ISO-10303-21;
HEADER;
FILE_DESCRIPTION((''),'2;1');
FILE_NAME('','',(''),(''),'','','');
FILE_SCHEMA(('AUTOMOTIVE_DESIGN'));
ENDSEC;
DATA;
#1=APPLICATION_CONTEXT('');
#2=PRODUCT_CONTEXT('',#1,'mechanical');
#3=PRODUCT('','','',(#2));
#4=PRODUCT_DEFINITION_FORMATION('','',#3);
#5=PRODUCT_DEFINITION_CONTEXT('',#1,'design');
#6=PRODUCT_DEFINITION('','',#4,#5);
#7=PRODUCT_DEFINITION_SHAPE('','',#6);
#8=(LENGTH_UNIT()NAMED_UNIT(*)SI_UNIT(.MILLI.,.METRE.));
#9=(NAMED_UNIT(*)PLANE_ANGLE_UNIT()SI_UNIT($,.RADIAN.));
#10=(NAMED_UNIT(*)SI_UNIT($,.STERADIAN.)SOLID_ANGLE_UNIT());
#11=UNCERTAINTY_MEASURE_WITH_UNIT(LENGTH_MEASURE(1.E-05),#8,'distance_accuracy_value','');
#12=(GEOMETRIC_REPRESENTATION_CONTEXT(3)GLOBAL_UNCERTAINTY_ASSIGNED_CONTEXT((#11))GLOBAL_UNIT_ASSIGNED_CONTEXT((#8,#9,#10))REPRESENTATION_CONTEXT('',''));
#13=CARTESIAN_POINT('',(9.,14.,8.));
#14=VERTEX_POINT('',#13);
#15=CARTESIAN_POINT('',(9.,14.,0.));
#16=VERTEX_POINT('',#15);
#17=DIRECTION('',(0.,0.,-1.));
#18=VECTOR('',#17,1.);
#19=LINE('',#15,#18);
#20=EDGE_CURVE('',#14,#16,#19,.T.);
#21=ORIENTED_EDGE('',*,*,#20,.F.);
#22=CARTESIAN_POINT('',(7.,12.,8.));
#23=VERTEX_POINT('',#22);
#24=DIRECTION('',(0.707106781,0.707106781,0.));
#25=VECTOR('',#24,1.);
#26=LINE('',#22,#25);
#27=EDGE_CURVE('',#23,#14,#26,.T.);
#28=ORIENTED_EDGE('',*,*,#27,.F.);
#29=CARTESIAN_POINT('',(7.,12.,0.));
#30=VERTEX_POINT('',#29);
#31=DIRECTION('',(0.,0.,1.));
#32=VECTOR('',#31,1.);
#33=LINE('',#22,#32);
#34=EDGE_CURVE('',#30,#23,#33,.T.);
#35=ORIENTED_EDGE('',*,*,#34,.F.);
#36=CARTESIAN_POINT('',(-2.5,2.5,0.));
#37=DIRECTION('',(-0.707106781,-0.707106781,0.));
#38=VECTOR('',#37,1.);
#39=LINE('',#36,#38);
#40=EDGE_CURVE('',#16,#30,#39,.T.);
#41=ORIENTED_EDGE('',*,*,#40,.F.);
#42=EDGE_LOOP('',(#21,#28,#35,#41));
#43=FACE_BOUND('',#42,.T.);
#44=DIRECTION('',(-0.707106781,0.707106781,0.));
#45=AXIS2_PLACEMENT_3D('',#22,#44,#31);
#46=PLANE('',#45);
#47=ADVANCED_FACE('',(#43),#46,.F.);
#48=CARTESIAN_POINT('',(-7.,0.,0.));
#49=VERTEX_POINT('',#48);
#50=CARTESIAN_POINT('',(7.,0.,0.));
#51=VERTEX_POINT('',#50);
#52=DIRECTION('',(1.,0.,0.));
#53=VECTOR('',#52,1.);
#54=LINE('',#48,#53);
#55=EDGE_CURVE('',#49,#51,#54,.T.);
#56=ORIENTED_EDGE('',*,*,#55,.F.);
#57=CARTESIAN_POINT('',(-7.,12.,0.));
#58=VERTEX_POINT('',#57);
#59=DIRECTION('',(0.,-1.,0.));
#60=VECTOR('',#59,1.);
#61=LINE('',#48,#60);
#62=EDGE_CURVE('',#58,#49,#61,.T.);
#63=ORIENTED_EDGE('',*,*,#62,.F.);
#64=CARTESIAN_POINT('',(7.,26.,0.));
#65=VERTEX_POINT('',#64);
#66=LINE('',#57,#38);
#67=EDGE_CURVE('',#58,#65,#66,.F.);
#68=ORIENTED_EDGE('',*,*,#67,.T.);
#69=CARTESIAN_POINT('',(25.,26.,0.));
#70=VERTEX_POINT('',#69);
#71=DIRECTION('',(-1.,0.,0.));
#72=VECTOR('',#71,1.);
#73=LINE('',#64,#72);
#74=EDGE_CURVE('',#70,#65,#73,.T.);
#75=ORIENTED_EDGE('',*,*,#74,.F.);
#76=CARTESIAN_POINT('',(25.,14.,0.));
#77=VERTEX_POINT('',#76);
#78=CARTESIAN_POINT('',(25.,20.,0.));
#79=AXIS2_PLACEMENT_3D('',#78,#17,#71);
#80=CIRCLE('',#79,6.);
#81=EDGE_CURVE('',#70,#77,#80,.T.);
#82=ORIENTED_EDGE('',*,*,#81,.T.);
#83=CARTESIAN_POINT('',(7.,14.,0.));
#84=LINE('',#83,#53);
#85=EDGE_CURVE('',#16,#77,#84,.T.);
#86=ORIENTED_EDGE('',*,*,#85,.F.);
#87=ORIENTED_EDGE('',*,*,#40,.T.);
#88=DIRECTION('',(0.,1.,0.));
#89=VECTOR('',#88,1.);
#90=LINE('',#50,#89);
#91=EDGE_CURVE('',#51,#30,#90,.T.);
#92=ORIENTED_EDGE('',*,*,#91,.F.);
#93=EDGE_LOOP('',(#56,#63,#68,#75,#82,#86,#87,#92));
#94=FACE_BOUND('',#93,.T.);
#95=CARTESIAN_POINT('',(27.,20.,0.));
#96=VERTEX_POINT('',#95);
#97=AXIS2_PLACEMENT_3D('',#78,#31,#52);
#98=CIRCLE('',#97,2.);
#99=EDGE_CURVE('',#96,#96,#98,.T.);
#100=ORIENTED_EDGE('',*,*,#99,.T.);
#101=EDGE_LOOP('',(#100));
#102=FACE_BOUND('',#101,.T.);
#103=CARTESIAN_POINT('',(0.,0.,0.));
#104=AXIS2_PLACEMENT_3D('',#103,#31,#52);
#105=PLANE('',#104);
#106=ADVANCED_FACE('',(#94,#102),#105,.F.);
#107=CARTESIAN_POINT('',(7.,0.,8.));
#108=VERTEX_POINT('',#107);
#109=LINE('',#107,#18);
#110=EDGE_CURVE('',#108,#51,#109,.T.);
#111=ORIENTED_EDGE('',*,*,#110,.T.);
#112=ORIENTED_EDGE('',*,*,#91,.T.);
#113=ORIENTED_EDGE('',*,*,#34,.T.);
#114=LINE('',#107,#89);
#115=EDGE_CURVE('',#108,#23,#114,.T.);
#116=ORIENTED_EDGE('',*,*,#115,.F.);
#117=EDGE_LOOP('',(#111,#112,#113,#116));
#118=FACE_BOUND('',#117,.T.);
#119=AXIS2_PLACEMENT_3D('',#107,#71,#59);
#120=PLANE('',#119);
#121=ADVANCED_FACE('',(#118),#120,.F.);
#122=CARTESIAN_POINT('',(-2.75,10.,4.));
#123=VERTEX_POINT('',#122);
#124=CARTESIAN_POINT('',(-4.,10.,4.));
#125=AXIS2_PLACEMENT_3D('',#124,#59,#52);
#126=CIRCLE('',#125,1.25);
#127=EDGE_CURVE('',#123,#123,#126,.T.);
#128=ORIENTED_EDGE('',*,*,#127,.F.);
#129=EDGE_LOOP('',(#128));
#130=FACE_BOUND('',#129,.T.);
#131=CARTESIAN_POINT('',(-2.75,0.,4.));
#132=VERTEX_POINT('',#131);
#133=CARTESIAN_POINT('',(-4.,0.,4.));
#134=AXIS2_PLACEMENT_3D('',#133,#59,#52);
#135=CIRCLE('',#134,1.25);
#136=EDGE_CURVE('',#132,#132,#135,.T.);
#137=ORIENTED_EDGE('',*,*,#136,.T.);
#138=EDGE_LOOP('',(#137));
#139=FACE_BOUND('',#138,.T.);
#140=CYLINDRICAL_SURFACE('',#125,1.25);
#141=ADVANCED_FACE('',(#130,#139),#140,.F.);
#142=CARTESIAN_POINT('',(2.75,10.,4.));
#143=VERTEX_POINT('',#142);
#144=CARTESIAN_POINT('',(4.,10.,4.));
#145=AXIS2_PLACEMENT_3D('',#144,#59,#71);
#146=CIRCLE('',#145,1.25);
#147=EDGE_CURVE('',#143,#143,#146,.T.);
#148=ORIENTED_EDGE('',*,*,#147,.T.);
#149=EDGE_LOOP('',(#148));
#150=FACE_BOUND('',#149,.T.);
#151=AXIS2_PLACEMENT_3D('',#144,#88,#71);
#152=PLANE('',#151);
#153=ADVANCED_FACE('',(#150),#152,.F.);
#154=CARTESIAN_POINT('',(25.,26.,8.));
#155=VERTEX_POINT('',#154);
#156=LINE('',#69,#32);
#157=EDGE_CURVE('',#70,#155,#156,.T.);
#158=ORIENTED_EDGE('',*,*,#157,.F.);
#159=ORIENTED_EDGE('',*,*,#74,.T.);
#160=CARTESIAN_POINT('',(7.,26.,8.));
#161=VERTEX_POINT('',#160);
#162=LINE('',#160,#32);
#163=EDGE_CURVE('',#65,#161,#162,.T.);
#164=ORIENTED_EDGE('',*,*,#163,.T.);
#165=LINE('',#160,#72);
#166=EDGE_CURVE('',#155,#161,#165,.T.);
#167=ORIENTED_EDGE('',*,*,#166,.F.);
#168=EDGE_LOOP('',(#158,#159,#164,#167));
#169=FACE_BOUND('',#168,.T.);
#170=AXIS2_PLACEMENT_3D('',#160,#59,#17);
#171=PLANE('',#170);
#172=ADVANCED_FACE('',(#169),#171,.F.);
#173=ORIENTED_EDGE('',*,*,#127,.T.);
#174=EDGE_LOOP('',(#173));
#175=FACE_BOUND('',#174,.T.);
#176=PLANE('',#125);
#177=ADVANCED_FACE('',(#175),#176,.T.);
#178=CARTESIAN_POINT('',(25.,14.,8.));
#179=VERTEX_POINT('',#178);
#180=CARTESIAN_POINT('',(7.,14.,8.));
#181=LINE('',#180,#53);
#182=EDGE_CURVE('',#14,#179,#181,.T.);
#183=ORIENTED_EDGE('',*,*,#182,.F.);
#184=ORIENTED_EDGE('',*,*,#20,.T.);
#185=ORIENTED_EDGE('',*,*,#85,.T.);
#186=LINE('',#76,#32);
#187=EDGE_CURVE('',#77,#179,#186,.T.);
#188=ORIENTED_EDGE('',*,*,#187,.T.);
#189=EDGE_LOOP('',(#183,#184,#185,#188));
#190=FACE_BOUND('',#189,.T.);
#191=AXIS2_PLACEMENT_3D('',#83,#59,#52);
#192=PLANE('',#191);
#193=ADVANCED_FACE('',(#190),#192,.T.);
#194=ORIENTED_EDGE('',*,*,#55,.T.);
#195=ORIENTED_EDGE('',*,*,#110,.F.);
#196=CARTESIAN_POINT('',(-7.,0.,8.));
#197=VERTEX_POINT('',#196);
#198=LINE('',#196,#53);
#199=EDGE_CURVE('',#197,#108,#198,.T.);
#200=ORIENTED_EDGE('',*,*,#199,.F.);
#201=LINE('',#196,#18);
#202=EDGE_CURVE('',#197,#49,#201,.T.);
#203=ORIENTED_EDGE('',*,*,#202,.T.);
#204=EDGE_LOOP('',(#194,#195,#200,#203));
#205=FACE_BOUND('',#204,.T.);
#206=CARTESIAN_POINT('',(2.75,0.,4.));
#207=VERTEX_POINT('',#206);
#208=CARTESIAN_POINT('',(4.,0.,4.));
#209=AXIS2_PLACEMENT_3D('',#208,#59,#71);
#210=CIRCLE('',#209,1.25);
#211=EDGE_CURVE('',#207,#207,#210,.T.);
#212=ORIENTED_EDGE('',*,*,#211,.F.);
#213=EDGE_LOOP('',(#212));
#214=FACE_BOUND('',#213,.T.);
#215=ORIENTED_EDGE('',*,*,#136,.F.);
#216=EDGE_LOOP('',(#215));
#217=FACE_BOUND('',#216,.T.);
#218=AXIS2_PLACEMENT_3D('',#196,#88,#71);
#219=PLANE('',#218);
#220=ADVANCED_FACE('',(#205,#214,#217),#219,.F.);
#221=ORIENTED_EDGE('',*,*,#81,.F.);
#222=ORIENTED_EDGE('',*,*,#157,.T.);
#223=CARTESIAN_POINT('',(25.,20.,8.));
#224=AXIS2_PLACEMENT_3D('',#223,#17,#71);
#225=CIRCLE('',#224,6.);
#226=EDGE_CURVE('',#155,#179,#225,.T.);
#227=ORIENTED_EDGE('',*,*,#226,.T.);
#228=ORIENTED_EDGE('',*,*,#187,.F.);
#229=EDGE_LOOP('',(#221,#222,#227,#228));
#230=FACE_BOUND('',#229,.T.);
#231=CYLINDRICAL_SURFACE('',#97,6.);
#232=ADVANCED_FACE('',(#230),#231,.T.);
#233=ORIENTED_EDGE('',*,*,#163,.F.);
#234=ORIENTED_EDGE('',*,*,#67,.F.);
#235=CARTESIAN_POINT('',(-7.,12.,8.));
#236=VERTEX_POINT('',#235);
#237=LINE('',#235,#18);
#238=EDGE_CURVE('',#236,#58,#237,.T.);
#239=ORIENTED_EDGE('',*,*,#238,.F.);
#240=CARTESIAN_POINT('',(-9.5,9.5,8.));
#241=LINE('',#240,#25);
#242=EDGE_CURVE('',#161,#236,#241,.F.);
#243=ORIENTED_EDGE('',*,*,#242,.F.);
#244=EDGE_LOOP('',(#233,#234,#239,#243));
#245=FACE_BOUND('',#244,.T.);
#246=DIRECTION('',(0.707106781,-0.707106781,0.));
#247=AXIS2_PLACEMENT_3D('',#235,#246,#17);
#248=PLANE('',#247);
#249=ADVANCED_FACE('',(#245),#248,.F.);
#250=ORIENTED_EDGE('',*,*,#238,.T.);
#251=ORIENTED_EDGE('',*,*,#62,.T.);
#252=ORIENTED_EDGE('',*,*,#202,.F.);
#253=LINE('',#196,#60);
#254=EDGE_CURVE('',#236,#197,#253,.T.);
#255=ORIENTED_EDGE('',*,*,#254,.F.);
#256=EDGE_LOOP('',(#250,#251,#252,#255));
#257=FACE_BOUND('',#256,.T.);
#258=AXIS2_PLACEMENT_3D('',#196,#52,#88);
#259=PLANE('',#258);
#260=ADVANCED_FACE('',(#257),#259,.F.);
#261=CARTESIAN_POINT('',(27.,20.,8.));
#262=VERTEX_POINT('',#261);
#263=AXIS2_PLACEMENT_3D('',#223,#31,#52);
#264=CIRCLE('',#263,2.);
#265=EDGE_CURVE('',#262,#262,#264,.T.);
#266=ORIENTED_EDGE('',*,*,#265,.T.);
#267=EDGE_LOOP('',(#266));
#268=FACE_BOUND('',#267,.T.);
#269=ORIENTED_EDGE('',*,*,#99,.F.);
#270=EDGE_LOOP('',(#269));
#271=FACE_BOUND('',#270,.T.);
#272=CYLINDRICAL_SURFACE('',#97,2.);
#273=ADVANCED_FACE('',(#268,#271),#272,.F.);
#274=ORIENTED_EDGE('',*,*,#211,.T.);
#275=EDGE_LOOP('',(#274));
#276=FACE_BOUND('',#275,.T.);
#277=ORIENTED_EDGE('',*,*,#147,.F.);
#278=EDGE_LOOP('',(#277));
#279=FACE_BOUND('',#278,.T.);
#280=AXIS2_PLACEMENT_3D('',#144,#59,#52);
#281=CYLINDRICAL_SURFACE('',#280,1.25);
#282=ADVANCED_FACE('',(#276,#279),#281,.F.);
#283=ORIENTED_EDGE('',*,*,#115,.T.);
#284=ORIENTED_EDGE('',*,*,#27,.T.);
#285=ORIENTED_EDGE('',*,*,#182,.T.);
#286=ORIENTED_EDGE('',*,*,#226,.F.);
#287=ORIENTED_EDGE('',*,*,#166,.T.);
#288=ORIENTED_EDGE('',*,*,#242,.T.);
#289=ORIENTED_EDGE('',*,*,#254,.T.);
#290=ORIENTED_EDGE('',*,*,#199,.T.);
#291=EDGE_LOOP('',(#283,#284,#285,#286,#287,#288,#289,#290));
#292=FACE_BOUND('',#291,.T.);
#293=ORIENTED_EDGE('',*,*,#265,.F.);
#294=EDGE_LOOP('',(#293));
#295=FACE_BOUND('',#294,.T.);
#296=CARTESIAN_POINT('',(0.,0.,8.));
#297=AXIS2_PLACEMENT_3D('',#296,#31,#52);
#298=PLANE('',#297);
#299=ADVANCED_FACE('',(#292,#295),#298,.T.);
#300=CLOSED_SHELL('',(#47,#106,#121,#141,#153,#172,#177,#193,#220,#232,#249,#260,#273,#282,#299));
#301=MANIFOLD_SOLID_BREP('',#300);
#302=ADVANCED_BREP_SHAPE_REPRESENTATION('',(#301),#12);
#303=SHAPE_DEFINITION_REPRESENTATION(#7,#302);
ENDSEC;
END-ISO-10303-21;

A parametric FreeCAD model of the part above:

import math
import FreeCAD as App
import Part
import Sketcher


def edges_at(feature, points):
    """Names of the edges that pass closest to the given points."""
    edges = feature.Shape.Edges
    near = lambda p: min(range(len(edges)), key=lambda i: edges[i].distToShape(Part.Vertex(*p))[0])
    return sorted({f"Edge{near(p) + 1}" for p in points})

doc = App.newDocument("Part")
body = doc.addObject("PartDesign::Body", "Body")

sketch1 = body.newObject("Sketcher::SketchObject", "Sketch")
sketch1.AttachmentSupport = (doc.getObject("XY_Plane"), [""])
sketch1.MapMode = "FlatFace"
sketch1.addGeometry([
    Part.LineSegment(App.Vector(-7, 26, 0), App.Vector(-7, 0, 0)),
    Part.LineSegment(App.Vector(-7, 0, 0), App.Vector(7, 0, 0)),
    Part.LineSegment(App.Vector(7, 0, 0), App.Vector(7, 26, 0)),
    Part.LineSegment(App.Vector(7, 26, 0), App.Vector(-7, 26, 0)),
], False)
sketch1.addConstraint([
    Sketcher.Constraint("Coincident", 0, 2, 1, 1),
    Sketcher.Constraint("Coincident", 1, 2, 2, 1),
    Sketcher.Constraint("Coincident", 2, 2, 3, 1),
    Sketcher.Constraint("Coincident", 3, 2, 0, 1),
    Sketcher.Constraint("Vertical", 0),
    Sketcher.Constraint("Horizontal", 1),
    Sketcher.Constraint("Vertical", 2),
    Sketcher.Constraint("Horizontal", 3),
    Sketcher.Constraint("Symmetric", 0, 2, 1, 2, -1, 1),
    Sketcher.Constraint("DistanceX", 1, 1, 1, 2, 14.0),
    Sketcher.Constraint("DistanceY", 0, 2, 0, 1, 26.0),
])
pad1 = body.newObject("PartDesign::Pad", "Pad")
pad1.Profile = sketch1
pad1.Length = 8

sketch2 = body.newObject("Sketcher::SketchObject", "Sketch001")
sketch2.AttachmentSupport = (doc.getObject("XZ_Plane"), [""])
sketch2.MapMode = "FlatFace"
sketch2.addGeometry([
    Part.Circle(App.Vector(-4, 4, 0), App.Vector(0, 0, 1), 1.25),
    Part.Circle(App.Vector(4, 4, 0), App.Vector(0, 0, 1), 1.25),
], False)
sketch2.addConstraint([
    Sketcher.Constraint("Equal", 0, 1),
    Sketcher.Constraint("Symmetric", 0, 3, 1, 3, -2),
    Sketcher.Constraint("Diameter", 0, 2.5),
    Sketcher.Constraint("DistanceX", 0, 3, -1, 1, 4.0),
    Sketcher.Constraint("DistanceY", -1, 1, 0, 3, 4.0),
])
pocket1 = body.newObject("PartDesign::Pocket", "Pocket")
pocket1.Profile = sketch2
pocket1.Length = 10

sketch3 = body.newObject("Sketcher::SketchObject", "Sketch002")
sketch3.AttachmentSupport = (doc.getObject("XY_Plane"), [""])
sketch3.MapMode = "FlatFace"
sketch3.AttachmentOffset = App.Placement(App.Vector(0, 0, 8), App.Rotation())
sketch3.addGeometry([
    Part.LineSegment(App.Vector(7, 26, 0), App.Vector(7, 14, 0)),
    Part.LineSegment(App.Vector(7, 14, 0), App.Vector(31, 14, 0)),
    Part.LineSegment(App.Vector(31, 14, 0), App.Vector(31, 26, 0)),
    Part.LineSegment(App.Vector(31, 26, 0), App.Vector(7, 26, 0)),
], False)
sketch3.addConstraint([
    Sketcher.Constraint("Coincident", 0, 2, 1, 1),
    Sketcher.Constraint("Coincident", 1, 2, 2, 1),
    Sketcher.Constraint("Coincident", 2, 2, 3, 1),
    Sketcher.Constraint("Coincident", 3, 2, 0, 1),
    Sketcher.Constraint("Vertical", 0),
    Sketcher.Constraint("Horizontal", 1),
    Sketcher.Constraint("Vertical", 2),
    Sketcher.Constraint("Horizontal", 3),
    Sketcher.Constraint("DistanceX", 1, 1, 1, 2, 24.0),
    Sketcher.Constraint("DistanceY", 0, 2, 0, 1, 12.0),
    Sketcher.Constraint("DistanceX", -1, 1, 0, 2, 7.0),
    Sketcher.Constraint("DistanceY", -1, 1, 0, 2, 14.0),
])
pad2 = body.newObject("PartDesign::Pad", "Pad001")
pad2.Profile = sketch3
pad2.Length = 8
pad2.Reversed = True

sketch4 = body.newObject("Sketcher::SketchObject", "Sketch003")
sketch4.AttachmentSupport = (doc.getObject("XY_Plane"), [""])
sketch4.MapMode = "FlatFace"
sketch4.AttachmentOffset = App.Placement(App.Vector(0, 0, 8), App.Rotation())
sketch4.addGeometry(Part.Circle(App.Vector(25, 20, 0), App.Vector(0, 0, 1), 2), False)
sketch4.addConstraint([
    Sketcher.Constraint("Diameter", 0, 4.0),
    Sketcher.Constraint("DistanceX", -1, 1, 0, 3, 25.0),
    Sketcher.Constraint("DistanceY", -1, 1, 0, 3, 20.0),
])
pocket2 = body.newObject("PartDesign::Pocket", "Pocket001")
pocket2.Profile = sketch4
pocket2.Type = "ThroughAll"
doc.recompute()

chamfer = body.newObject("PartDesign::Chamfer", "Chamfer")
chamfer.Base = (pocket2, edges_at(pocket2, [(-7, 26, 4)]))
chamfer.Size = 14

sketch5 = body.newObject("Sketcher::SketchObject", "Sketch004")
sketch5.AttachmentSupport = (doc.getObject("XY_Plane"), [""])
sketch5.MapMode = "FlatFace"
sketch5.AttachmentOffset = App.Placement(App.Vector(0, 0, 8), App.Rotation())
sketch5.addGeometry([
    Part.LineSegment(App.Vector(32, 26, 0), App.Vector(25, 26, 0)),
    Part.ArcOfCircle(Part.Circle(App.Vector(25, 20, 0), App.Vector(0, 0, 1), 6), math.radians(-90), math.radians(90)),
    Part.LineSegment(App.Vector(25, 14, 0), App.Vector(32, 14, 0)),
    Part.LineSegment(App.Vector(32, 14, 0), App.Vector(32, 26, 0)),
], False)
sketch5.addConstraint([
    Sketcher.Constraint("Tangent", 0, 2, 1, 2),
    Sketcher.Constraint("Tangent", 1, 1, 2, 1),
    Sketcher.Constraint("Coincident", 2, 2, 3, 1),
    Sketcher.Constraint("Coincident", 3, 2, 0, 1),
    Sketcher.Constraint("Horizontal", 0),
    Sketcher.Constraint("Horizontal", 2),
    Sketcher.Constraint("Vertical", 3),
    Sketcher.Constraint("Radius", 1, 6.0),
    Sketcher.Constraint("DistanceX", 0, 2, 0, 1, 7.0),
    Sketcher.Constraint("DistanceX", -1, 1, 1, 3, 25.0),
    Sketcher.Constraint("DistanceY", -1, 1, 1, 3, 20.0),
])
pocket3 = body.newObject("PartDesign::Pocket", "Pocket002")
pocket3.Profile = sketch5
pocket3.Type = "ThroughAll"
doc.recompute()

chamfer2 = body.newObject("PartDesign::Chamfer", "Chamfer001")
chamfer2.Base = (pocket3, edges_at(pocket3, [(7, 14, 4)]))
chamfer2.Size = 2

doc.recompute()
